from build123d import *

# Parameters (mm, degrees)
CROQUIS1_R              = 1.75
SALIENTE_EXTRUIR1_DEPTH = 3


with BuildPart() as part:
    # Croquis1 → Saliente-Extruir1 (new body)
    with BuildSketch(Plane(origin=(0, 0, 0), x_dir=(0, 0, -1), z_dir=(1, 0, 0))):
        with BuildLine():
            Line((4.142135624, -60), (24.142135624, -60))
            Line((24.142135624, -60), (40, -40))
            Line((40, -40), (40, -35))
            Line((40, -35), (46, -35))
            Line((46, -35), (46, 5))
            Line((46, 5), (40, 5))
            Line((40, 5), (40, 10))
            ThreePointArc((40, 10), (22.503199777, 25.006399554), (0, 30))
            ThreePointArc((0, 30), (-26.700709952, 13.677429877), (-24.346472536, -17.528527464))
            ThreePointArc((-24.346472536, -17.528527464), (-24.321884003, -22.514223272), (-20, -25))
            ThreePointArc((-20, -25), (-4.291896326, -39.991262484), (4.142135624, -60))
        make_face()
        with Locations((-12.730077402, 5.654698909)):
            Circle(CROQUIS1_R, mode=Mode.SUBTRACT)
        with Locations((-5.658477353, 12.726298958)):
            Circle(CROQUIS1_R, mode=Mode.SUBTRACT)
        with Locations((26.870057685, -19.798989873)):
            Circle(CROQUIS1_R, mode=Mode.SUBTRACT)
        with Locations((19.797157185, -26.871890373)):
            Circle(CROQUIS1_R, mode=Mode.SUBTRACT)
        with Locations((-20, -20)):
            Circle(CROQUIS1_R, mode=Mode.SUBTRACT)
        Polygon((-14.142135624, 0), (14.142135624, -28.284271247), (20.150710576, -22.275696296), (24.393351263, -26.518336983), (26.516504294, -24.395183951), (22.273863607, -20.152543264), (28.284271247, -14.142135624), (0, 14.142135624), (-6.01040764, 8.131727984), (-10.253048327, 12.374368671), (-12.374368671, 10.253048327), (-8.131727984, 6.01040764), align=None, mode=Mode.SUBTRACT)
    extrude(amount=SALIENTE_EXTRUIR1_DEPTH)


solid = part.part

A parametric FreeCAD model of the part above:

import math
import FreeCAD as App
import Part
import Sketcher
Q = App.Units.Quantity

doc = App.newDocument("Part")
body = doc.addObject("PartDesign::Body", "Body")

# Sketch on YZ plane
sketch1 = body.newObject("Sketcher::SketchObject", "Sketch")
sketch1.AttachmentSupport = (doc.getObject("YZ_Plane"), [""])
sketch1.MapMode = "FlatFace"
sketch1.addGeometry(Part.LineSegment(App.Vector(-60, -4.142136, 0), App.Vector(-60, -24.142136, 0)), False)
sketch1.addGeometry(Part.LineSegment(App.Vector(-60, -24.142136, 0), App.Vector(-40, -40, 0)), False)
sketch1.addGeometry(Part.LineSegment(App.Vector(-40, -40, 0), App.Vector(-35, -40, 0)), False)
sketch1.addGeometry(Part.LineSegment(App.Vector(-35, -40, 0), App.Vector(-35, -46, 0)), False)
sketch1.addGeometry(Part.LineSegment(App.Vector(-35, -46, 0), App.Vector(5, -46, 0)), False)
sketch1.addGeometry(Part.LineSegment(App.Vector(5, -46, 0), App.Vector(5, -40, 0)), False)
sketch1.addGeometry(Part.LineSegment(App.Vector(5, -40, 0), App.Vector(10, -40, 0)), False)
sketch1.addGeometry(Part.ArcOfCircle(Part.Circle(App.Vector(-17.445669, -1.277165, 0), App.Vector(0, 0, 1), 47.462856), math.radians(-54.672045), math.radians(1.541943)), False)
sketch1.addGeometry(Part.ArcOfCircle(Part.Circle(App.Vector(0, 0, 0), App.Vector(0, 0, 1), 30), math.radians(0), math.radians(125.752442)), False)
sketch1.addGeometry(Part.ArcOfCircle(Part.Circle(App.Vector(-20, 20, 0), App.Vector(0, 0, 1), 5), math.radians(60.37676), math.radians(180)), False)
sketch1.addGeometry(Part.ArcOfCircle(Part.Circle(App.Vector(-70.28627, 48.212006, 0), App.Vector(0, 0, 1), 53.35507), math.radians(-78.884409), math.radians(-31.921685)), False)
sketch1.addGeometry(Part.Circle(App.Vector(-20, 20, 0), App.Vector(0, 0, 1), 1.75), False)
sketch1.addGeometry(Part.Circle(App.Vector(-26.87189, -19.797157, 0), App.Vector(0, 0, 1), 1.75), False)
sketch1.addGeometry(Part.Circle(App.Vector(-19.79899, -26.870058, 0), App.Vector(0, 0, 1), 1.75), False)
sketch1.addGeometry(Part.Circle(App.Vector(5.654699, 12.730077, 0), App.Vector(0, 0, 1), 1.75), False)
sketch1.addGeometry(Part.Circle(App.Vector(12.726299, 5.658477, 0), App.Vector(0, 0, 1), 1.75), False)
sketch1.addGeometry(Part.LineSegment(App.Vector(-28.284271, -14.142136, 0), App.Vector(0, 14.142136, 0)), False)
sketch1.addGeometry(Part.LineSegment(App.Vector(0, 14.142136, 0), App.Vector(6.010408, 8.131728, 0)), False)
sketch1.addGeometry(Part.LineSegment(App.Vector(6.010408, 8.131728, 0), App.Vector(10.253048, 12.374369, 0)), False)
sketch1.addGeometry(Part.LineSegment(App.Vector(10.253048, 12.374369, 0), App.Vector(12.374369, 10.253048, 0)), False)
sketch1.addGeometry(Part.LineSegment(App.Vector(12.374369, 10.253048, 0), App.Vector(8.131728, 6.010408, 0)), False)
sketch1.addGeometry(Part.LineSegment(App.Vector(8.131728, 6.010408, 0), App.Vector(14.142136, 0, 0)), False)
sketch1.addGeometry(Part.LineSegment(App.Vector(14.142136, 0, 0), App.Vector(-14.142136, -28.284271, 0)), False)
sketch1.addGeometry(Part.LineSegment(App.Vector(-14.142136, -28.284271, 0), App.Vector(-20.152543, -22.273864, 0)), False)
sketch1.addGeometry(Part.LineSegment(App.Vector(-20.152543, -22.273864, 0), App.Vector(-24.395184, -26.516504, 0)), False)
sketch1.addGeometry(Part.LineSegment(App.Vector(-24.395184, -26.516504, 0), App.Vector(-26.518337, -24.393351, 0)), False)
sketch1.addGeometry(Part.LineSegment(App.Vector(-26.518337, -24.393351, 0), App.Vector(-22.275696, -20.150711, 0)), False)
sketch1.addGeometry(Part.LineSegment(App.Vector(-22.275696, -20.150711, 0), App.Vector(-28.284271, -14.142136, 0)), False)
sketch1.addConstraint(Sketcher.Constraint("Coincident", 0, 2, 1, 1))
sketch1.addConstraint(Sketcher.Constraint("Coincident", 1, 2, 2, 1))
sketch1.addConstraint(Sketcher.Constraint("Coincident", 2, 2, 3, 1))
sketch1.addConstraint(Sketcher.Constraint("Coincident", 3, 2, 4, 1))
sketch1.addConstraint(Sketcher.Constraint("Coincident", 4, 2, 5, 1))
sketch1.addConstraint(Sketcher.Constraint("Coincident", 5, 2, 6, 1))
sketch1.addConstraint(Sketcher.Constraint("Coincident", 6, 2, 7, 1))
sketch1.addConstraint(Sketcher.Constraint("Coincident", 7, 2, 8, 1))
sketch1.addConstraint(Sketcher.Constraint("Coincident", 8, 2, 9, 1))
sketch1.addConstraint(Sketcher.Constraint("Coincident", 9, 2, 10, 2))
sketch1.addConstraint(Sketcher.Constraint("Coincident", 10, 1, 0, 1))
sketch1.addConstraint(Sketcher.Constraint("Coincident", 16, 2, 17, 1))
sketch1.addConstraint(Sketcher.Constraint("Coincident", 17, 2, 18, 1))
sketch1.addConstraint(Sketcher.Constraint("Coincident", 18, 2, 19, 1))
sketch1.addConstraint(Sketcher.Constraint("Coincident", 19, 2, 20, 1))
sketch1.addConstraint(Sketcher.Constraint("Coincident", 20, 2, 21, 1))
sketch1.addConstraint(Sketcher.Constraint("Coincident", 21, 2, 22, 1))
sketch1.addConstraint(Sketcher.Constraint("Coincident", 22, 2, 23, 1))
sketch1.addConstraint(Sketcher.Constraint("Coincident", 23, 2, 24, 1))
sketch1.addConstraint(Sketcher.Constraint("Coincident", 24, 2, 25, 1))
sketch1.addConstraint(Sketcher.Constraint("Coincident", 25, 2, 26, 1))
sketch1.addConstraint(Sketcher.Constraint("Coincident", 26, 2, 27, 1))
sketch1.addConstraint(Sketcher.Constraint("Coincident", 27, 2, 16, 1))
sketch1.addConstraint(Sketcher.Constraint("Vertical", 0))
sketch1.addConstraint(Sketcher.Constraint("Horizontal", 2))
sketch1.addConstraint(Sketcher.Constraint("Vertical", 3))
sketch1.addConstraint(Sketcher.Constraint("Horizontal", 4))
sketch1.addConstraint(Sketcher.Constraint("Vertical", 5))
sketch1.addConstraint(Sketcher.Constraint("Horizontal", 6))
sketch1.addConstraint(Sketcher.Constraint("Coincident", 8, 3, -1, 1))
sketch1.addConstraint(Sketcher.Constraint("Coincident", 11, 3, 9, 3))
sketch1.addConstraint(Sketcher.Constraint("Equal", 11, 12))
sketch1.addConstraint(Sketcher.Constraint("Equal", 12, 13))
sketch1.addConstraint(Sketcher.Constraint("Equal", 13, 14))
sketch1.addConstraint(Sketcher.Constraint("Equal", 14, 15))
sketch1.addConstraint(Sketcher.Constraint("PointOnObject", 7, 2, -1))
sketch1.addConstraint(Sketcher.Constraint("PointOnObject", 16, 2, -2))
sketch1.addConstraint(Sketcher.Constraint("PointOnObject", 21, 2, -1))
sketch1.addConstraint(Sketcher.Constraint("Perpendicular", 16, 17))
sketch1.addConstraint(Sketcher.Constraint("Perpendicular", 17, 18))
sketch1.addConstraint(Sketcher.Constraint("Perpendicular", 18, 19))
sketch1.addConstraint(Sketcher.Constraint("Perpendicular", 19, 20))
sketch1.addConstraint(Sketcher.Constraint("Perpendicular", 20, 21))
sketch1.addConstraint(Sketcher.Constraint("Perpendicular", 21, 22))
sketch1.addConstraint(Sketcher.Constraint("Perpendicular", 22, 23))
sketch1.addConstraint(Sketcher.Constraint("Perpendicular", 23, 24))
sketch1.addConstraint(Sketcher.Constraint("Perpendicular", 24, 25))
sketch1.addConstraint(Sketcher.Constraint("Perpendicular", 25, 26))
sketch1.addConstraint(Sketcher.Constraint("Perpendicular", 26, 27))
sketch1.addConstraint(Sketcher.Constraint("Horizontal", 2, 2, 5, 2))
sketch1.addConstraint(Sketcher.Constraint("Horizontal", 11, 3, 9, 2))
sketch1.addConstraint(Sketcher.Constraint("Equal", 2, 6))
sketch1.addConstraint(Sketcher.Constraint("Equal", 18, 20))
sketch1.addConstraint(Sketcher.Constraint("Equal", 17, 21))
sketch1.addConstraint(Sketcher.Constraint("Equal", 16, 22))
sketch1.addConstraint(Sketcher.Constraint("Equal", 21, 23))
sketch1.addConstraint(Sketcher.Constraint("Equal", 20, 24))
sketch1.addConstraint(Sketcher.Constraint("Radius", 8, 30.0))
sketch1.addConstraint(Sketcher.Constraint("Radius", 9, 5.0))
sketch1.addConstraint(Sketcher.Constraint("Diameter", 11, 3.5))
sketch1.addConstraint(Sketcher.Constraint("DistanceX", 2, 1, 2, 2, 5.0))
sketch1.addConstraint(Sketcher.Constraint("DistanceX", 4, 1, 4, 2, 40.0))
sketch1.addConstraint(Sketcher.Constraint("DistanceY", 0, 2, 0, 1, 20.0))
sketch1.addConstraint(Sketcher.Constraint("DistanceY", 3, 2, 3, 1, 6.0))
sketch1.addConstraint(Sketcher.Constraint("Angle", 16, Q("45 deg")))
sketch1.addConstraint(Sketcher.Constraint("Distance", 16, 40.0))
sketch1.addConstraint(Sketcher.Constraint("Distance", 18, 6.0))
sketch1.addConstraint(Sketcher.Constraint("Distance", 19, 3.0))
sketch1.addConstraint(Sketcher.Constraint("DistanceX", 9, 3, -1, 1, 20.0))
sketch1.addConstraint(Sketcher.Constraint("DistanceY", -1, 1, 9, 3, 20.0))
sketch1.addConstraint(Sketcher.Constraint("DistanceX", 0, 2, -1, 1, 60.0))
sketch1.addConstraint(Sketcher.Constraint("DistanceX", 1, 2, -1, 1, 40.0))
sketch1.addConstraint(Sketcher.Constraint("DistanceY", 1, 2, -1, 1, 40.0))
sketch1.addConstraint(Sketcher.Constraint("Distance", 17, 8.5))
sketch1.addConstraint(Sketcher.Constraint("Radius", 10, 53.35507))
sketch1.addConstraint(Sketcher.Constraint("Radius", 7, 47.462856))
sketch1.addConstraint(Sketcher.Constraint("DistanceX", -1, 1, 14, 3, 5.654699))
sketch1.addConstraint(Sketcher.Constraint("DistanceX", -1, 1, 15, 3, 12.726299))
sketch1.addConstraint(Sketcher.Constraint("DistanceX", 10, 3, 7, 3, 52.8406))
sketch1.addConstraint(Sketcher.Constraint("DistanceX", 12, 3, 13, 3, 7.0729))
sketch1.addConstraint(Sketcher.Constraint("DistanceY", 13, 3, 12, 3, 7.0729))
sketch1.addConstraint(Sketcher.Constraint("DistanceY", 15, 3, 14, 3, 7.0716))
sketch1.addConstraint(Sketcher.Constraint("DistanceX", 25, 2, 22, 2, 12.376201))
sketch1.addConstraint(Sketcher.Constraint("DistanceX", 12, 3, -1, 1, 26.87189))
sketch1.addConstraint(Sketcher.Constraint("DistanceY", 12, 3, 7, 3, 18.519992))
sketch1.addConstraint(Sketcher.Constraint("DistanceY", 14, 3, 16, 2, 1.412058))
pad1 = body.newObject("PartDesign::Pad", "Pad")
pad1.Profile = sketch1
pad1.Length = 3

doc.recompute()
